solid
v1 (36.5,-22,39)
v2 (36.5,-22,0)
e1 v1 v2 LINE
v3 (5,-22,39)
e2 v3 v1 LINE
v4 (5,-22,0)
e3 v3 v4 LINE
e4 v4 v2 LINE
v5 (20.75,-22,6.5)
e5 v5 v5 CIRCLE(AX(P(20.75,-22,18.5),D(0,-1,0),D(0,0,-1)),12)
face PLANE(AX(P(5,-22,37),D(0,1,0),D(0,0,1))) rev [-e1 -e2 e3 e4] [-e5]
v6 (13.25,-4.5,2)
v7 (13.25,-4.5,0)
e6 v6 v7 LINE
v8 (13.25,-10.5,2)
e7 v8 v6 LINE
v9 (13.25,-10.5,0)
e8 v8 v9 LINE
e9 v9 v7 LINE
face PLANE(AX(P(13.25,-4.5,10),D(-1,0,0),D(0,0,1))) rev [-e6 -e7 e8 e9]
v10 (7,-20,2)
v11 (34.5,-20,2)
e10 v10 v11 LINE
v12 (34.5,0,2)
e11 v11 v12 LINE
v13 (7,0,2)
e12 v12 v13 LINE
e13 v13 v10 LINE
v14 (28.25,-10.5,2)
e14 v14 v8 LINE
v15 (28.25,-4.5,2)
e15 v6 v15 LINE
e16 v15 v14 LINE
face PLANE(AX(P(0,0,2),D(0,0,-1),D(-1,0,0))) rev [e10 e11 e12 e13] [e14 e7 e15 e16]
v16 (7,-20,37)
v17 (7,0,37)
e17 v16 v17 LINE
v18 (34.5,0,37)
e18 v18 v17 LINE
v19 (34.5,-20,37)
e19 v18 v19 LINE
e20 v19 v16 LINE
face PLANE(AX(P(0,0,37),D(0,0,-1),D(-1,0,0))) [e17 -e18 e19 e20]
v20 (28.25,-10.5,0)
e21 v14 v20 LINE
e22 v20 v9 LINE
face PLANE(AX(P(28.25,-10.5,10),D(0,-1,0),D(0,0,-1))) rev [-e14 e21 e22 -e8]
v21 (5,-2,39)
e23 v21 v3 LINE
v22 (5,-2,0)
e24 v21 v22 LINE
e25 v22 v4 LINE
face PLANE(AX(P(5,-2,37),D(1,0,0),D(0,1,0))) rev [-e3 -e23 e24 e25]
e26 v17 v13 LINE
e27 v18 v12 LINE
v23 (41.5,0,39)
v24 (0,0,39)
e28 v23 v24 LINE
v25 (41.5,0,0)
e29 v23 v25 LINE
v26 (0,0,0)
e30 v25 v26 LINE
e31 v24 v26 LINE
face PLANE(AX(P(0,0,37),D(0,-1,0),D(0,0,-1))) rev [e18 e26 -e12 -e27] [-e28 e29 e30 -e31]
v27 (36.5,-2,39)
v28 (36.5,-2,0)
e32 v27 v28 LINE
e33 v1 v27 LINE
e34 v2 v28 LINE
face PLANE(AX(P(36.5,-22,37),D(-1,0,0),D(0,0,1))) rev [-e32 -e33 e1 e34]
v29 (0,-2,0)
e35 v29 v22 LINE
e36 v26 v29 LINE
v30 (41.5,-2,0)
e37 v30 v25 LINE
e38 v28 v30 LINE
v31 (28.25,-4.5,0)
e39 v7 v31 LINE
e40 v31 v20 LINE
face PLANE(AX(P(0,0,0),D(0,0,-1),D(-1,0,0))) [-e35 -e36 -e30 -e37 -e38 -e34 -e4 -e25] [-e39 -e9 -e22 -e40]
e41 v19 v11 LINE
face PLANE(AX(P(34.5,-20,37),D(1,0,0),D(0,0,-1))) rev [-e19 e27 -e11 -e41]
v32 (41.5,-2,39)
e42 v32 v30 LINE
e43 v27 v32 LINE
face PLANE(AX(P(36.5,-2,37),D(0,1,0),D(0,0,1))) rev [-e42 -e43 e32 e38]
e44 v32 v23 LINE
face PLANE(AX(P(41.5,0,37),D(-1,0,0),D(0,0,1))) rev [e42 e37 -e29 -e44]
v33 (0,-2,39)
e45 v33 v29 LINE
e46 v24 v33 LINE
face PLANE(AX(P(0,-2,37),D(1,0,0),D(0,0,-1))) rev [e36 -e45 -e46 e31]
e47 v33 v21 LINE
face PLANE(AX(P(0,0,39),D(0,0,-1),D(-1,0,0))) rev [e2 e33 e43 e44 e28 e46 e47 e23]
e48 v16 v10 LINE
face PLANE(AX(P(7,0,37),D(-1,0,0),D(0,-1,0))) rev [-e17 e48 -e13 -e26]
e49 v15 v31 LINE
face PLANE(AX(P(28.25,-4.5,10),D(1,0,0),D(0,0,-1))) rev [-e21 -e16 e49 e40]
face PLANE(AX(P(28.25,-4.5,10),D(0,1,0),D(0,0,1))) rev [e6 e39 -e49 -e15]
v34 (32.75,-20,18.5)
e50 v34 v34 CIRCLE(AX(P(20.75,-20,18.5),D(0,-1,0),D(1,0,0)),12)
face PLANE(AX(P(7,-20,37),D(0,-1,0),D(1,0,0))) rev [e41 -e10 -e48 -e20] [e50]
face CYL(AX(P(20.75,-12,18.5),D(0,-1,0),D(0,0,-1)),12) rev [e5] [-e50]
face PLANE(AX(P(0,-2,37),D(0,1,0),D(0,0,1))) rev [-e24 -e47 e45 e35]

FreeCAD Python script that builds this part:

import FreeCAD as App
import Part
import Sketcher

V = App.Vector

doc = App.newDocument("Part")
body = doc.addObject("PartDesign::Body", "Body")

# Sketch on XY plane
sketch1 = body.newObject("Sketcher::SketchObject", "Sketch")
sketch1.AttachmentSupport = (doc.getObject("XY_Plane"), [""])
sketch1.MapMode = "FlatFace"
sketch1.addGeometry([
    Part.LineSegment(V(7, 0, 0), V(0, 0, 0)),  # 0
    Part.LineSegment(V(0, 0, 0), V(0, -2, 0)),  # 1
    Part.LineSegment(V(0, -2, 0), V(5, -2, 0)),  # 2
    Part.LineSegment(V(5, -2, 0), V(5, -22, 0)),  # 3
    Part.LineSegment(V(5, -22, 0), V(36.5, -22, 0)),  # 4
    Part.LineSegment(V(36.5, -22, 0), V(36.5, -2, 0)),  # 5
    Part.LineSegment(V(36.5, -2, 0), V(41.5, -2, 0)),  # 6
    Part.LineSegment(V(41.5, -2, 0), V(41.5, 0, 0)),  # 7
    Part.LineSegment(V(41.5, 0, 0), V(34.5, 0, 0)),  # 8
    Part.LineSegment(V(34.5, 0, 0), V(34.5, -20, 0)),  # 9
    Part.LineSegment(V(34.5, -20, 0), V(7, -20, 0)),  # 10
    Part.LineSegment(V(7, -20, 0), V(7, 0, 0)),  # 11
], False)
sketch1.addConstraint([
    Sketcher.Constraint("Coincident", 0, 2, 1, 1),
    Sketcher.Constraint("Coincident", 1, 2, 2, 1),
    Sketcher.Constraint("Coincident", 2, 2, 3, 1),
    Sketcher.Constraint("Coincident", 3, 2, 4, 1),
    Sketcher.Constraint("Coincident", 4, 2, 5, 1),
    Sketcher.Constraint("Coincident", 5, 2, 6, 1),
    Sketcher.Constraint("Coincident", 6, 2, 7, 1),
    Sketcher.Constraint("Coincident", 7, 2, 8, 1),
    Sketcher.Constraint("Coincident", 8, 2, 9, 1),
    Sketcher.Constraint("Coincident", 9, 2, 10, 1),
    Sketcher.Constraint("Coincident", 10, 2, 11, 1),
    Sketcher.Constraint("Coincident", 11, 2, 0, 1),
    Sketcher.Constraint("Horizontal", 0),
    Sketcher.Constraint("Vertical", 1),
    Sketcher.Constraint("Horizontal", 2),
    Sketcher.Constraint("Vertical", 3),
    Sketcher.Constraint("Horizontal", 4),
    Sketcher.Constraint("Vertical", 5),
    Sketcher.Constraint("Horizontal", 6),
    Sketcher.Constraint("Vertical", 7),
    Sketcher.Constraint("Horizontal", 8),
    Sketcher.Constraint("Vertical", 9),
    Sketcher.Constraint("Horizontal", 10),
    Sketcher.Constraint("Vertical", 11),
    Sketcher.Constraint("Coincident", 0, 2, -1, 1),
    Sketcher.Constraint("PointOnObject", 7, 2, -1),
    Sketcher.Constraint("Horizontal", 2, 2, 5, 2),
    Sketcher.Constraint("Equal", 2, 6),
    Sketcher.Constraint("Equal", 0, 8),
    Sketcher.Constraint("Equal", 5, 9),
    Sketcher.Constraint("DistanceX", 0, 2, 0, 1, 7.0),
    Sketcher.Constraint("DistanceX", 2, 1, 2, 2, 5.0),
    Sketcher.Constraint("DistanceY", 1, 2, 1, 1, 2.0),
    Sketcher.Constraint("DistanceY", 3, 2, 3, 1, 20.0),
    Sketcher.Constraint("DistanceX", 4, 1, 4, 2, 31.5),
])
pad1 = body.newObject("PartDesign::Pad", "Pad")
pad1.Profile = sketch1
pad1.Length = 37

# Sketch on XY plane
sketch2 = body.newObject("Sketcher::SketchObject", "Sketch001")
sketch2.AttachmentSupport = (doc.getObject("XY_Plane"), [""])
sketch2.MapMode = "FlatFace"
sketch2.AttachmentOffset = App.Placement(V(0, 0, 37), App.Rotation())
sketch2.addGeometry([
    Part.LineSegment(V(41.5, 0, 0), V(0, 0, 0)),  # 0
    Part.LineSegment(V(0, 0, 0), V(0, -2, 0)),  # 1
    Part.LineSegment(V(0, -2, 0), V(5, -2, 0)),  # 2
    Part.LineSegment(V(5, -2, 0), V(5, -22, 0)),  # 3
    Part.LineSegment(V(5, -22, 0), V(36.5, -22, 0)),  # 4
    Part.LineSegment(V(36.5, -22, 0), V(36.5, -2, 0)),  # 5
    Part.LineSegment(V(36.5, -2, 0), V(41.5, -2, 0)),  # 6
    Part.LineSegment(V(41.5, -2, 0), V(41.5, 0, 0)),  # 7
], False)
sketch2.addConstraint([
    Sketcher.Constraint("Coincident", 0, 2, 1, 1),
    Sketcher.Constraint("Coincident", 1, 2, 2, 1),
    Sketcher.Constraint("Coincident", 2, 2, 3, 1),
    Sketcher.Constraint("Coincident", 3, 2, 4, 1),
    Sketcher.Constraint("Coincident", 4, 2, 5, 1),
    Sketcher.Constraint("Coincident", 5, 2, 6, 1),
    Sketcher.Constraint("Coincident", 6, 2, 7, 1),
    Sketcher.Constraint("Coincident", 7, 2, 0, 1),
    Sketcher.Constraint("Horizontal", 0),
    Sketcher.Constraint("Vertical", 1),
    Sketcher.Constraint("Horizontal", 2),
    Sketcher.Constraint("Vertical", 3),
    Sketcher.Constraint("Horizontal", 4),
    Sketcher.Constraint("Vertical", 5),
    Sketcher.Constraint("Horizontal", 6),
    Sketcher.Constraint("Vertical", 7),
    Sketcher.Constraint("Coincident", 0, 2, -1, 1),
    Sketcher.Constraint("Horizontal", 2, 2, 5, 2),
    Sketcher.Constraint("Equal", 2, 6),
    Sketcher.Constraint("DistanceX", 2, 1, 2, 2, 5.0),
    Sketcher.Constraint("DistanceY", 1, 2, 1, 1, 2.0),
    Sketcher.Constraint("DistanceY", 3, 2, 3, 1, 20.0),
    Sketcher.Constraint("DistanceX", 0, 2, 0, 1, 41.5),
])
pad2 = body.newObject("PartDesign::Pad", "Pad001")
pad2.Profile = sketch2
pad2.Length = 2

# Sketch on XY plane
sketch3 = body.newObject("Sketcher::SketchObject", "Sketch002")
sketch3.AttachmentSupport = (doc.getObject("XY_Plane"), [""])
sketch3.MapMode = "FlatFace"
sketch3.AttachmentOffset = App.Placement(V(0, 0, 2), App.Rotation())
sketch3.addGeometry([
    Part.LineSegment(V(41.5, 0, 0), V(0, 0, 0)),  # 0
    Part.LineSegment(V(0, 0, 0), V(0, -2, 0)),  # 1
    Part.LineSegment(V(0, -2, 0), V(5, -2, 0)),  # 2
    Part.LineSegment(V(5, -2, 0), V(5, -22, 0)),  # 3
    Part.LineSegment(V(5, -22, 0), V(36.5, -22, 0)),  # 4
    Part.LineSegment(V(36.5, -22, 0), V(36.5, -2, 0)),  # 5
    Part.LineSegment(V(36.5, -2, 0), V(41.5, -2, 0)),  # 6
    Part.LineSegment(V(41.5, -2, 0), V(41.5, 0, 0)),  # 7
], False)
sketch3.addConstraint([
    Sketcher.Constraint("Coincident", 0, 2, 1, 1),
    Sketcher.Constraint("Coincident", 1, 2, 2, 1),
    Sketcher.Constraint("Coincident", 2, 2, 3, 1),
    Sketcher.Constraint("Coincident", 3, 2, 4, 1),
    Sketcher.Constraint("Coincident", 4, 2, 5, 1),
    Sketcher.Constraint("Coincident", 5, 2, 6, 1),
    Sketcher.Constraint("Coincident", 6, 2, 7, 1),
    Sketcher.Constraint("Coincident", 7, 2, 0, 1),
    Sketcher.Constraint("Horizontal", 0),
    Sketcher.Constraint("Vertical", 1),
    Sketcher.Constraint("Horizontal", 2),
    Sketcher.Constraint("Vertical", 3),
    Sketcher.Constraint("Horizontal", 4),
    Sketcher.Constraint("Vertical", 5),
    Sketcher.Constraint("Horizontal", 6),
    Sketcher.Constraint("Vertical", 7),
    Sketcher.Constraint("Coincident", 0, 2, -1, 1),
    Sketcher.Constraint("Horizontal", 2, 2, 5, 2),
    Sketcher.Constraint("Equal", 2, 6),
    Sketcher.Constraint("DistanceX", 2, 1, 2, 2, 5.0),
    Sketcher.Constraint("DistanceY", 1, 2, 1, 1, 2.0),
    Sketcher.Constraint("DistanceY", 3, 2, 3, 1, 20.0),
    Sketcher.Constraint("DistanceX", 0, 2, 0, 1, 41.5),
])
pad3 = body.newObject("PartDesign::Pad", "Pad002")
pad3.Profile = sketch3
pad3.Length = 2
pad3.Reversed = True

# Sketch on XY plane
sketch4 = body.newObject("Sketcher::SketchObject", "Sketch003")
sketch4.AttachmentSupport = (doc.getObject("XY_Plane"), [""])
sketch4.MapMode = "FlatFace"
sketch4.addGeometry([
    Part.LineSegment(V(14.75, -9, 0), V(14.75, -6, 0)),
    Part.LineSegment(V(14.75, -6, 0), V(26.75, -6, 0)),
    Part.LineSegment(V(26.75, -6, 0), V(26.75, -9, 0)),
    Part.LineSegment(V(26.75, -9, 0), V(14.75, -9, 0)),
], False)
sketch4.addConstraint([
    Sketcher.Constraint("Coincident", 0, 2, 1, 1),
    Sketcher.Constraint("Coincident", 1, 2, 2, 1),
    Sketcher.Constraint("Coincident", 2, 2, 3, 1),
    Sketcher.Constraint("Coincident", 3, 2, 0, 1),
    Sketcher.Constraint("Vertical", 0),
    Sketcher.Constraint("Horizontal", 1),
    Sketcher.Constraint("Vertical", 2),
    Sketcher.Constraint("Horizontal", 3),
    Sketcher.Constraint("DistanceX", 1, 1, 1, 2, 12.0),
    Sketcher.Constraint("DistanceY", 0, 1, 0, 2, 3.0),
    Sketcher.Constraint("DistanceY", 0, 2, -1, 1, 6.0),
    Sketcher.Constraint("DistanceX", -1, 1, 0, 2, 14.75),
])
pocket1 = body.newObject("PartDesign::Pocket", "Pocket")
pocket1.Profile = sketch4
pocket1.Length = 2
pocket1.Reversed = True

# Sketch on XY plane
sketch5 = body.newObject("Sketcher::SketchObject", "Sketch004")
sketch5.AttachmentSupport = (doc.getObject("XY_Plane"), [""])
sketch5.MapMode = "FlatFace"
sketch5.addGeometry([
    Part.LineSegment(V(28.25, -4.5, 0), V(28.25, -10.5, 0)),  # 0
    Part.LineSegment(V(28.25, -10.5, 0), V(13.25, -10.5, 0)),  # 1
    Part.LineSegment(V(13.25, -10.5, 0), V(13.25, -4.5, 0)),  # 2
    Part.LineSegment(V(13.25, -4.5, 0), V(28.25, -4.5, 0)),  # 3
    Part.LineSegment(V(14.75, -9, 0), V(26.75, -9, 0)),  # 4
    Part.LineSegment(V(26.75, -9, 0), V(26.75, -6, 0)),  # 5
    Part.LineSegment(V(26.75, -6, 0), V(14.75, -6, 0)),  # 6
    Part.LineSegment(V(14.75, -6, 0), V(14.75, -9, 0)),  # 7
], False)
sketch5.addConstraint([
    Sketcher.Constraint("Coincident", 0, 2, 1, 1),
    Sketcher.Constraint("Coincident", 1, 2, 2, 1),
    Sketcher.Constraint("Coincident", 2, 2, 3, 1),
    Sketcher.Constraint("Coincident", 3, 2, 0, 1),
    Sketcher.Constraint("Coincident", 4, 2, 5, 1),
    Sketcher.Constraint("Coincident", 5, 2, 6, 1),
    Sketcher.Constraint("Coincident", 6, 2, 7, 1),
    Sketcher.Constraint("Coincident", 7, 2, 4, 1),
    Sketcher.Constraint("Vertical", 0),
    Sketcher.Constraint("Horizontal", 1),
    Sketcher.Constraint("Vertical", 2),
    Sketcher.Constraint("Horizontal", 3),
    Sketcher.Constraint("Horizontal", 4),
    Sketcher.Constraint("Vertical", 5),
    Sketcher.Constraint("Horizontal", 6),
    Sketcher.Constraint("Vertical", 7),
    Sketcher.Constraint("DistanceX", 1, 2, 1, 1, 15.0),
    Sketcher.Constraint("DistanceX", 4, 1, 4, 2, 12.0),
    Sketcher.Constraint("DistanceY", 0, 2, 0, 1, 6.0),
    Sketcher.Constraint("DistanceY", 5, 1, 5, 2, 3.0),
    Sketcher.Constraint("DistanceY", 4, 2, -1, 1, 9.0),
    Sketcher.Constraint("DistanceY", 0, 2, -1, 1, 10.5),
    Sketcher.Constraint("DistanceX", 4, 2, 0, 2, 1.5),
    Sketcher.Constraint("DistanceX", -1, 1, 0, 2, 28.25),
])
pocket2 = body.newObject("PartDesign::Pocket", "Pocket001")
pocket2.Profile = sketch5
pocket2.Length = 10
pocket2.Reversed = True

# Sketch on XZ plane
sketch6 = body.newObject("Sketcher::SketchObject", "Sketch005")
sketch6.AttachmentSupport = (doc.getObject("XZ_Plane"), [""])
sketch6.MapMode = "FlatFace"
sketch6.AttachmentOffset = App.Placement(V(0, 0, 22), App.Rotation())
sketch6.addGeometry(Part.Circle(V(20.75, 18.5, 0), V(0, 0, 1), 12), False)
sketch6.addConstraint([
    Sketcher.Constraint("Diameter", 0, 24.0),
    Sketcher.Constraint("DistanceY", -1, 1, 0, 3, 18.5),
    Sketcher.Constraint("DistanceX", -1, 1, 0, 3, 20.75),
])
pocket3 = body.newObject("PartDesign::Pocket", "Pocket002")
pocket3.Profile = sketch6
pocket3.Length = 10

doc.recompute()
